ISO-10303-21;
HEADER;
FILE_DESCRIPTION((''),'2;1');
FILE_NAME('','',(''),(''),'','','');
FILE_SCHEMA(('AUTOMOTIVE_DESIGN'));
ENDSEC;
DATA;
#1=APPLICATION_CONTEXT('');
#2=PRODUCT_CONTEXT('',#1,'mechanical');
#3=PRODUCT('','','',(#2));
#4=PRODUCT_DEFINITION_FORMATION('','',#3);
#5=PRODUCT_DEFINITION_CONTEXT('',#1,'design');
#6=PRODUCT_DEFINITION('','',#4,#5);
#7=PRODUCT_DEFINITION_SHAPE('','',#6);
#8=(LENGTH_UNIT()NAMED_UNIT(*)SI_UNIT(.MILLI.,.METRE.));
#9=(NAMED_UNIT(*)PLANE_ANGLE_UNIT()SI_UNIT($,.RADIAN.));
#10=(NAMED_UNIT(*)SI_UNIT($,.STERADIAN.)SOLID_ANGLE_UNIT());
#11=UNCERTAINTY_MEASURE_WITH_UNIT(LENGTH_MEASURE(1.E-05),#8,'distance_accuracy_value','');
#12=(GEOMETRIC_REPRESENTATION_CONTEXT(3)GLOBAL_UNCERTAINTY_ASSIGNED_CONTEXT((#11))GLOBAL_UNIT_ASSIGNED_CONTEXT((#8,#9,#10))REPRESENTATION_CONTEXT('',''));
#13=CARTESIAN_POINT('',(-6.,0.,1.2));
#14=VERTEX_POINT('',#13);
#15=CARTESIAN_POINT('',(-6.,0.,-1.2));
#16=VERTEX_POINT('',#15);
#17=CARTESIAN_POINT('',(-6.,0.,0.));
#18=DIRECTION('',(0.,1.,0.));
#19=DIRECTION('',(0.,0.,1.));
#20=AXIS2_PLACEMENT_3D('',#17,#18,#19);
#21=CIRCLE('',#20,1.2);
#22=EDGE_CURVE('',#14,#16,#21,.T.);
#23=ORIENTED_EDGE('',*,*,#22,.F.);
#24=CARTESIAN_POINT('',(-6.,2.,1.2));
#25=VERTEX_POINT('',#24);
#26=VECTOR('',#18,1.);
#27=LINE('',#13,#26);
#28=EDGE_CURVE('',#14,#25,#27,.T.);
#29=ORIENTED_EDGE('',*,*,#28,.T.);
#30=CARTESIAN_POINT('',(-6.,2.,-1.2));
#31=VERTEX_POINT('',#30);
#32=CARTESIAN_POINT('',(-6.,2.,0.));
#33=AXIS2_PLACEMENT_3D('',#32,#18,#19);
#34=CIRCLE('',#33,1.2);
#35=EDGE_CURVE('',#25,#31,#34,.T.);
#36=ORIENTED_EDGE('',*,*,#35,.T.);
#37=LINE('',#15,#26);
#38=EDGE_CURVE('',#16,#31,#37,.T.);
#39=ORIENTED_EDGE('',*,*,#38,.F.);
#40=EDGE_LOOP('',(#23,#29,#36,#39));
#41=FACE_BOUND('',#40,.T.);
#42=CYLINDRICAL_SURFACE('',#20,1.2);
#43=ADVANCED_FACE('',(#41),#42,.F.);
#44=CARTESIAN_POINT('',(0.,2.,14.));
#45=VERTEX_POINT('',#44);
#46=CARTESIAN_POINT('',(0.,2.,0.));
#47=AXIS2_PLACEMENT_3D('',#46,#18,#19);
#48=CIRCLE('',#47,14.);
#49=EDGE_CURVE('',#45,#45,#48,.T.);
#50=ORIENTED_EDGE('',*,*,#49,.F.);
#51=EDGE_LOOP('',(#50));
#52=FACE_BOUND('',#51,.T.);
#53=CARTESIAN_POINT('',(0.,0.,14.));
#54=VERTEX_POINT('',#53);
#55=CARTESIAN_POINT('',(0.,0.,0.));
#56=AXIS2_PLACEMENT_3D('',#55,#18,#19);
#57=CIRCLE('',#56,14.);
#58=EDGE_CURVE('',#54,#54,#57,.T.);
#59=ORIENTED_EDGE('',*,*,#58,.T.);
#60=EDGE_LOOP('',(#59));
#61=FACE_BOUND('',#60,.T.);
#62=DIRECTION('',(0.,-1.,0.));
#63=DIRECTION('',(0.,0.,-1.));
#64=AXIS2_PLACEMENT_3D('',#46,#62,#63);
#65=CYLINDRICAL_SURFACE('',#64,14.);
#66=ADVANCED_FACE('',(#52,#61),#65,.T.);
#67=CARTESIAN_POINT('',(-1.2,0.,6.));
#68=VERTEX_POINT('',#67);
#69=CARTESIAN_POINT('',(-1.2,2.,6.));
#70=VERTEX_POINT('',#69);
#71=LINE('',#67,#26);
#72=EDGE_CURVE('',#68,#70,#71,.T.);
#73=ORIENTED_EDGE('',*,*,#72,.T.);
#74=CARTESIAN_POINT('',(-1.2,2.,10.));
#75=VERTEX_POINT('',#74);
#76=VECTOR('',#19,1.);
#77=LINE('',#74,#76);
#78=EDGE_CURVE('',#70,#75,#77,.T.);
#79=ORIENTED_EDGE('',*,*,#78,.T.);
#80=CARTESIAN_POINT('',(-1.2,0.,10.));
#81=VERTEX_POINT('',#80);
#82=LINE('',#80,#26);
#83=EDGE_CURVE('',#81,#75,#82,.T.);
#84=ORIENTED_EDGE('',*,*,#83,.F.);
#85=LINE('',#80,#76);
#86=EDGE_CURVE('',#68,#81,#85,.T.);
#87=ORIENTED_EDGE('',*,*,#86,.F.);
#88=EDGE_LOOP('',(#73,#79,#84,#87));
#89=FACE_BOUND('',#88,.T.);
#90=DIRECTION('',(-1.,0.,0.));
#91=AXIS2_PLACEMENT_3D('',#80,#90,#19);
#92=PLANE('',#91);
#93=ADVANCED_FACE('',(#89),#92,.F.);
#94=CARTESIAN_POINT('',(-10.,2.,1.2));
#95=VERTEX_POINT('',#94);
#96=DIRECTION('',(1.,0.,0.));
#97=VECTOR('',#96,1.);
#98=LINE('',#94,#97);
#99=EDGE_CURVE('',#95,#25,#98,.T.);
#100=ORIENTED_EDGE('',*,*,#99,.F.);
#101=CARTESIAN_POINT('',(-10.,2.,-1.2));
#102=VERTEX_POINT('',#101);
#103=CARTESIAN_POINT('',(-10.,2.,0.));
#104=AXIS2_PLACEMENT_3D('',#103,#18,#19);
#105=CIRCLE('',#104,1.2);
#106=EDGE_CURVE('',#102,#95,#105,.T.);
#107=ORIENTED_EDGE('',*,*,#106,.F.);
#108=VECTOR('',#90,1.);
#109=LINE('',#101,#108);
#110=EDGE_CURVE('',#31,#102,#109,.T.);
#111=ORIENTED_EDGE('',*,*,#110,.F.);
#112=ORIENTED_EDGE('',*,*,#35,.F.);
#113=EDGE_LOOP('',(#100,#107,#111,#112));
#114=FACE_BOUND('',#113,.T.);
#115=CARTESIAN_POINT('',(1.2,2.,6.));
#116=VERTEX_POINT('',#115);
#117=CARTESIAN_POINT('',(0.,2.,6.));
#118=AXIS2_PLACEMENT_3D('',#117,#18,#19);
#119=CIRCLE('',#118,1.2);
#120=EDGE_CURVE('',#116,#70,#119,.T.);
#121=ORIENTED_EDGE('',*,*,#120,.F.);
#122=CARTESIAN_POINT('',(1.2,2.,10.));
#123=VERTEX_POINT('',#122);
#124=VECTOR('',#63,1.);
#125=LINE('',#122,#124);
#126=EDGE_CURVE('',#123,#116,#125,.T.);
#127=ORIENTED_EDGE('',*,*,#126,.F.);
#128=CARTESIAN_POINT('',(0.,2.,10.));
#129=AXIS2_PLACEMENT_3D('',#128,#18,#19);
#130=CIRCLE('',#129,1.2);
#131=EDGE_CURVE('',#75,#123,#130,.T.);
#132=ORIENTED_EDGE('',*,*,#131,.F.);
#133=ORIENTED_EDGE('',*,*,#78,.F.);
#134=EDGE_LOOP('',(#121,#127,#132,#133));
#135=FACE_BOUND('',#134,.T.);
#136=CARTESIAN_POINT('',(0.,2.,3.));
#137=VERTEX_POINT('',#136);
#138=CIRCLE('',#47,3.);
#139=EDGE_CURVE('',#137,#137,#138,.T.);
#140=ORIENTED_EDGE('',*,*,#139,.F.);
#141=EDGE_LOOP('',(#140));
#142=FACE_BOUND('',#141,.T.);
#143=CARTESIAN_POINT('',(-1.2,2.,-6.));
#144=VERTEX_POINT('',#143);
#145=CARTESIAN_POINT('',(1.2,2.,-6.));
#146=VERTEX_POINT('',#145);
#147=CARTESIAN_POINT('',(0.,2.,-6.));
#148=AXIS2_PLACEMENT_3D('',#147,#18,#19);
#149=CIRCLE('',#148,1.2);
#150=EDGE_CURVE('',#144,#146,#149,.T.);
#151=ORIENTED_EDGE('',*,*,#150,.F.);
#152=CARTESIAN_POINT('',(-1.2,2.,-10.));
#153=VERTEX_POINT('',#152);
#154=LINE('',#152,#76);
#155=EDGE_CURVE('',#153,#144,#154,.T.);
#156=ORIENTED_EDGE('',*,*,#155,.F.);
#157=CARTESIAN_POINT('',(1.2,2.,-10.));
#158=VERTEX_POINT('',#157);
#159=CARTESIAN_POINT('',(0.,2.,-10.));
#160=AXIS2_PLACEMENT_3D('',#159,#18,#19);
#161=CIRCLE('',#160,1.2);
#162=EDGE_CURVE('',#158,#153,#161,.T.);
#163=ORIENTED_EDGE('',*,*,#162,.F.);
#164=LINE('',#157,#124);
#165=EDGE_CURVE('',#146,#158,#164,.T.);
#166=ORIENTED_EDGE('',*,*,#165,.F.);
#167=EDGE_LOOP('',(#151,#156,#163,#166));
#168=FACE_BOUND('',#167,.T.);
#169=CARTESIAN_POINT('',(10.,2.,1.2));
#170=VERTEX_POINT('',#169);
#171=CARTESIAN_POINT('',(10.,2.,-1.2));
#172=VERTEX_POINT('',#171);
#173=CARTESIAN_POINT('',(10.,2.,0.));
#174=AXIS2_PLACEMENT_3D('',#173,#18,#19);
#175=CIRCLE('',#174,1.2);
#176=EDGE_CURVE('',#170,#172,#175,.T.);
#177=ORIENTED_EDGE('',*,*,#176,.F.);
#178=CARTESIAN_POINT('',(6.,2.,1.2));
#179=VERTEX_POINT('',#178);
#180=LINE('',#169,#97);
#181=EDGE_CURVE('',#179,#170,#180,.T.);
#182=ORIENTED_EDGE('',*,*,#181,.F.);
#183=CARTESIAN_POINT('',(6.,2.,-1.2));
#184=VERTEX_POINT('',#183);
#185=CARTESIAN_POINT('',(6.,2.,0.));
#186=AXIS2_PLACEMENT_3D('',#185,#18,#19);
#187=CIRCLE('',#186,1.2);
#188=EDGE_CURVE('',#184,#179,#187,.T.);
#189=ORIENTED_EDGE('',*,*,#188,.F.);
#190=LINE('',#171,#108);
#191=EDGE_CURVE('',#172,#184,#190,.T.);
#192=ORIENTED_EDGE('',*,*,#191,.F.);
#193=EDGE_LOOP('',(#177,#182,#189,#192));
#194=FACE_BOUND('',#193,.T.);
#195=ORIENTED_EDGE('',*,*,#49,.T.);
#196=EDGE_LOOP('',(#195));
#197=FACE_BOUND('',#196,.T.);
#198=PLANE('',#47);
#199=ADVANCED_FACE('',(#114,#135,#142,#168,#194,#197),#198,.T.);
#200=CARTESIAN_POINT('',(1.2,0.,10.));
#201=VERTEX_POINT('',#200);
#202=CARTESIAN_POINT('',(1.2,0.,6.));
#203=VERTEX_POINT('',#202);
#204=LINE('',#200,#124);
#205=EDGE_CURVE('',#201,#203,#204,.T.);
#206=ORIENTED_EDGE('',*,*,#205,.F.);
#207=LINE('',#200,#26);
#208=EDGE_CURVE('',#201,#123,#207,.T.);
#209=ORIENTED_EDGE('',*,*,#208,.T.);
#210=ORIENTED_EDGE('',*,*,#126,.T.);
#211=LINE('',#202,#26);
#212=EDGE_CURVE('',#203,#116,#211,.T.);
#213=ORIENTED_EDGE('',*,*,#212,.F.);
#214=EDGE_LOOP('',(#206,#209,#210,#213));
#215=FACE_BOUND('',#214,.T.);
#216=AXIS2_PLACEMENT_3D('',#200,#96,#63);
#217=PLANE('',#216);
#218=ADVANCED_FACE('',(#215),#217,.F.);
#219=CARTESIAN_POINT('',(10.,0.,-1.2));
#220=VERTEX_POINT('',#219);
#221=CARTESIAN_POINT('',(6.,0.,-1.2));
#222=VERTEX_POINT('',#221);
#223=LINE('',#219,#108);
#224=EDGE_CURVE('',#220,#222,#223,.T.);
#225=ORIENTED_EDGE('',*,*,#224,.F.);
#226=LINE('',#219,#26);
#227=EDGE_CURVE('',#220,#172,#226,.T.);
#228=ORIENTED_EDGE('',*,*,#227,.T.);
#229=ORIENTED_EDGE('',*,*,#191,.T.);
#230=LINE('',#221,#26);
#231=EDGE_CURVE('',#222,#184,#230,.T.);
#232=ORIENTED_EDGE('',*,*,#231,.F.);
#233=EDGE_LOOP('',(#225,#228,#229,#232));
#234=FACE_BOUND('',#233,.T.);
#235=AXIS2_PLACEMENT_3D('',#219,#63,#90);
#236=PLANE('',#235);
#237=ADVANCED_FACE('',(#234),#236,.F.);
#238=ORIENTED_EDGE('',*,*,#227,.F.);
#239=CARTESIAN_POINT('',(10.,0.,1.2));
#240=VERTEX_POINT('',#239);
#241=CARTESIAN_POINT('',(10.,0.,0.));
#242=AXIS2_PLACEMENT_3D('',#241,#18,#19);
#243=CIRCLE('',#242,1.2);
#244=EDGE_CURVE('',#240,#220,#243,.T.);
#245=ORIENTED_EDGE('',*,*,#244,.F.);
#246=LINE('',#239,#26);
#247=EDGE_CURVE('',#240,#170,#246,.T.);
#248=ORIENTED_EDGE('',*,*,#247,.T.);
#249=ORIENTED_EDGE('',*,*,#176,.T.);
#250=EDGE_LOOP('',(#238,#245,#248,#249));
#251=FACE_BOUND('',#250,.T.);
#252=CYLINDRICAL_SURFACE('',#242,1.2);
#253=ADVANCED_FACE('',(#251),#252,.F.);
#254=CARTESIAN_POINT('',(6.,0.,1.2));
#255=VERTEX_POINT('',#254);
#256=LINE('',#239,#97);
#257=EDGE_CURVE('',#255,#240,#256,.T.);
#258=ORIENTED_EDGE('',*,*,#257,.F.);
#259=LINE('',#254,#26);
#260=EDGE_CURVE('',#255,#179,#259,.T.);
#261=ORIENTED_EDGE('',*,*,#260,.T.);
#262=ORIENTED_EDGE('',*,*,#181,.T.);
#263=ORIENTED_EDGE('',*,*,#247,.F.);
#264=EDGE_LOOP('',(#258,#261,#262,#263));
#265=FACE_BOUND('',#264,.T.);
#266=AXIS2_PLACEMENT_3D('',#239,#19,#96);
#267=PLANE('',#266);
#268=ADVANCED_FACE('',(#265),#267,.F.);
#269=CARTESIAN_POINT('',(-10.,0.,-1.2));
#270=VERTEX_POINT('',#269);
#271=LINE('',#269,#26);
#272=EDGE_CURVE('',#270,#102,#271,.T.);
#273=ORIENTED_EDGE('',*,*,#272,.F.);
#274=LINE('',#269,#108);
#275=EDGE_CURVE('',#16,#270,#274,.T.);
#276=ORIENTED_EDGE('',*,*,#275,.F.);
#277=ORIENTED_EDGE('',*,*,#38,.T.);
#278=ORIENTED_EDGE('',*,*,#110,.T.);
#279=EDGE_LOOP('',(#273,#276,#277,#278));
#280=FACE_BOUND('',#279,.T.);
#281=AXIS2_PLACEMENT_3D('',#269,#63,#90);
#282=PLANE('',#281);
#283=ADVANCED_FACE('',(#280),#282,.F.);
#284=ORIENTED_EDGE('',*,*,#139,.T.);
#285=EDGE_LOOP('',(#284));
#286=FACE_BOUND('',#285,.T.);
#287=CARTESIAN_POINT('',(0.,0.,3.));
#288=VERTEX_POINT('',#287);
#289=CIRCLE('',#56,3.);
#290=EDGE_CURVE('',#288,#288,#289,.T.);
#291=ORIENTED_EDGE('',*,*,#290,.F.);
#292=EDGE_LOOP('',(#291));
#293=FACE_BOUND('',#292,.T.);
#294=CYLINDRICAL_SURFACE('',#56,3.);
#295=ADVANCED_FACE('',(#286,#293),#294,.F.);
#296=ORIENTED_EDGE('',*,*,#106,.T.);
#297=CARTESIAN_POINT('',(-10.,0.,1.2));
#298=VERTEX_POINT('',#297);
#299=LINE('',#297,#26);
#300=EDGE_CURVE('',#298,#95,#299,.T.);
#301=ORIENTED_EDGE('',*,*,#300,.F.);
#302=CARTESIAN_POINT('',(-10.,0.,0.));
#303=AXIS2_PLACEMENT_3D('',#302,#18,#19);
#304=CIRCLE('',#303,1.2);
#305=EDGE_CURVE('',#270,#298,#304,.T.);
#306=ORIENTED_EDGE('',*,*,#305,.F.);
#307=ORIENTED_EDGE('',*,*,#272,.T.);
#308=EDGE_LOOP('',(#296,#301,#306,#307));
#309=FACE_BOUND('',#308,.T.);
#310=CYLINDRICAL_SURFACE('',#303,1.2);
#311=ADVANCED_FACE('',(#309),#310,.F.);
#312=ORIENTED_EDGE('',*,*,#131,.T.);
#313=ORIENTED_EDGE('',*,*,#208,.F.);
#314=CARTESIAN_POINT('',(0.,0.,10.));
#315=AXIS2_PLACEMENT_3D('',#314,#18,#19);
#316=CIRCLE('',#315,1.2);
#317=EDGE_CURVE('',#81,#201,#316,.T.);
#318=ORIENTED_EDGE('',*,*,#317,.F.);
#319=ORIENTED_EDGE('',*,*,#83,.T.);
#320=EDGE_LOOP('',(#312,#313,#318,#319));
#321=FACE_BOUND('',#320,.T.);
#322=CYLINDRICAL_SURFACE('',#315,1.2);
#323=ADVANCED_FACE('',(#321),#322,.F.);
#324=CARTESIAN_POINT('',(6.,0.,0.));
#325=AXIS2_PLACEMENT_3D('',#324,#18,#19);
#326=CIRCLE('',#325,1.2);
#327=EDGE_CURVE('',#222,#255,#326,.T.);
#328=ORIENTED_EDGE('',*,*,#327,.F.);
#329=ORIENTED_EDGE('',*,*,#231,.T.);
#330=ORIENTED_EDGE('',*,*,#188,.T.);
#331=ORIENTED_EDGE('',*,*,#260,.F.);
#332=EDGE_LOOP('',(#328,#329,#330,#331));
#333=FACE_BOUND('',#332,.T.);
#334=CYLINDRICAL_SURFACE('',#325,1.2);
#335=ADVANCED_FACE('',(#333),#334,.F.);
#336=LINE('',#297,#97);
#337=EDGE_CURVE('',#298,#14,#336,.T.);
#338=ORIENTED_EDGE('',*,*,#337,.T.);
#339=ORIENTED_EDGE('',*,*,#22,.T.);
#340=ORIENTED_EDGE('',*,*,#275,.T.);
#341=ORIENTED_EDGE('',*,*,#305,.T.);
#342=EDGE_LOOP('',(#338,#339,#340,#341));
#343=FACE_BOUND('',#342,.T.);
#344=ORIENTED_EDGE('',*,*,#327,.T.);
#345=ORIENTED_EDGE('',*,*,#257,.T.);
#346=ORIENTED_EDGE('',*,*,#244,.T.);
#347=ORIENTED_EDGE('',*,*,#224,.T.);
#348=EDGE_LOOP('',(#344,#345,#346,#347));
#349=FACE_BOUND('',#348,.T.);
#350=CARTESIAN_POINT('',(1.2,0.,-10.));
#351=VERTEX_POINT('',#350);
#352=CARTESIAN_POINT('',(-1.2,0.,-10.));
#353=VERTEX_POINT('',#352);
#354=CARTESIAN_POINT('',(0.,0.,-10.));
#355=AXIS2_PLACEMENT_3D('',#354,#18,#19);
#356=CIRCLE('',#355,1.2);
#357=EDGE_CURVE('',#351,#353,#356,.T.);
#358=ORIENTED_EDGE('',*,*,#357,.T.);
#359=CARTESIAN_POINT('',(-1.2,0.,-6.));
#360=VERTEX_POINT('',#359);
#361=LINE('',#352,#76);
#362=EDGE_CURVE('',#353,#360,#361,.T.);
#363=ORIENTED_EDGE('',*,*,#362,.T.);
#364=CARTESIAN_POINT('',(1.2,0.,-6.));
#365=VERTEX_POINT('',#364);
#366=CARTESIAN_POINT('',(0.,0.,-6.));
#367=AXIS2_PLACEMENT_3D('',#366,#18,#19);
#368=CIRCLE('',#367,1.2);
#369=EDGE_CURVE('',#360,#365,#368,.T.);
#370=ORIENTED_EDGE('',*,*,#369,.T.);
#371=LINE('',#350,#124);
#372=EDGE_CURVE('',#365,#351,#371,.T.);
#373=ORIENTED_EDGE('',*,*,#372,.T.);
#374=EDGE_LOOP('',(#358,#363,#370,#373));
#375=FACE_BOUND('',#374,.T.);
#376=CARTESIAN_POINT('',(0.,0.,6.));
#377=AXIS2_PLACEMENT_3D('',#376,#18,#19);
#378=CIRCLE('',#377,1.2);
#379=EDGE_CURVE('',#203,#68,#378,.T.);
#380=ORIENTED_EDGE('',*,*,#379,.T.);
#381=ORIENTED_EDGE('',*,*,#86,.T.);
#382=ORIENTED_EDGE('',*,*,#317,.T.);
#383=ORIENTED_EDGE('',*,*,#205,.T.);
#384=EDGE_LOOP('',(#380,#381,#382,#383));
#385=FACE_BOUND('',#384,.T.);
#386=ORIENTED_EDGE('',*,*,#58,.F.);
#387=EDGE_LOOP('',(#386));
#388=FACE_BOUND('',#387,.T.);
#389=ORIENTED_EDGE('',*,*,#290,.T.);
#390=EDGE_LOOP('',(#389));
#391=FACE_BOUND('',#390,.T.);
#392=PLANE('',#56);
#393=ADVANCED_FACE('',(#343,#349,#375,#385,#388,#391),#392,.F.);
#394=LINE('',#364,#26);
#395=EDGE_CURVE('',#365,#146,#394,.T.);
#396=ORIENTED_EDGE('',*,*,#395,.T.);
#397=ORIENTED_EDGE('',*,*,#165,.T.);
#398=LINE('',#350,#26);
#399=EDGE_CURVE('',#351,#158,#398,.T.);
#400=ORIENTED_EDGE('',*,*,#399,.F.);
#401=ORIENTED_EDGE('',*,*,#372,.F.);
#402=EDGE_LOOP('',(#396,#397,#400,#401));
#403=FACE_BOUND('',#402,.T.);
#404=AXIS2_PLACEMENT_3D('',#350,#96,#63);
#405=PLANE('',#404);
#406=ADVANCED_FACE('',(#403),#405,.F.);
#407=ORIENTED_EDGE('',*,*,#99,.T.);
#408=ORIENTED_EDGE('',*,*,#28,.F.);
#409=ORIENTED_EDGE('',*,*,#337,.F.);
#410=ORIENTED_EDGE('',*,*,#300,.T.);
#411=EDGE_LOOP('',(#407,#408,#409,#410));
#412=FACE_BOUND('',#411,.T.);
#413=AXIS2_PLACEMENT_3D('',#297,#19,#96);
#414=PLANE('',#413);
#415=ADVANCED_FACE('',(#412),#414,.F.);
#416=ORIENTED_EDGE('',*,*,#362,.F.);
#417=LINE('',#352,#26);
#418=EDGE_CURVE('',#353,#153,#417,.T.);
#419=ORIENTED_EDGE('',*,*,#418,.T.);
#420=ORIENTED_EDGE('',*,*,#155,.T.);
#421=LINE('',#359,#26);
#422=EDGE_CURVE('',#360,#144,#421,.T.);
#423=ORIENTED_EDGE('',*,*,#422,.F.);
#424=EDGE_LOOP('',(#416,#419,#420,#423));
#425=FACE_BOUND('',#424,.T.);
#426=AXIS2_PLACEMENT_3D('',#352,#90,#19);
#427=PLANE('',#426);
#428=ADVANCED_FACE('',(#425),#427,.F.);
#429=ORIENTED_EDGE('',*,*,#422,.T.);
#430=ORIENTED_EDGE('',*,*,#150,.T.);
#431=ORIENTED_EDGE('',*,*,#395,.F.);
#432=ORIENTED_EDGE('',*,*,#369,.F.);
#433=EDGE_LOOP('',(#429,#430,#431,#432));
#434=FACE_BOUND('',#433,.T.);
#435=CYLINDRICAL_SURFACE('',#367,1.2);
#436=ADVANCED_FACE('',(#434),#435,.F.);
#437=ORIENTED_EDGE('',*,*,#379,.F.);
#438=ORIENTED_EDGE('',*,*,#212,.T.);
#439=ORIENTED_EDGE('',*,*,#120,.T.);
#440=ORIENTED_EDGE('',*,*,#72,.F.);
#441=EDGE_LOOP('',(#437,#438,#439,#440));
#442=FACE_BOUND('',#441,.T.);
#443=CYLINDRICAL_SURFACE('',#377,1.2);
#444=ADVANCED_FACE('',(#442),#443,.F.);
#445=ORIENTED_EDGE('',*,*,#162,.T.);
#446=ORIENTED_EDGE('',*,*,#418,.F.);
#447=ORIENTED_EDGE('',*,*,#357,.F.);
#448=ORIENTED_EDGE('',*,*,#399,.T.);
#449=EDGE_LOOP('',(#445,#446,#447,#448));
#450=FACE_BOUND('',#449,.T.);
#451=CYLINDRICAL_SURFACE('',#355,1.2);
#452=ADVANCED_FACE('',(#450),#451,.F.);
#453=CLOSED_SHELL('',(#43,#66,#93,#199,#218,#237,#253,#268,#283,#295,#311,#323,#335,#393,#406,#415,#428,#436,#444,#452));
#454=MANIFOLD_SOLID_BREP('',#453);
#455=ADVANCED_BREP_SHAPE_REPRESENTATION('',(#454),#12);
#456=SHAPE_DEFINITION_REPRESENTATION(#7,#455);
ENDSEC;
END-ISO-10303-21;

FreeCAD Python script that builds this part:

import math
import FreeCAD as App
import Part
import Sketcher
from FreeCAD import Vector
Q = App.Units.Quantity

doc = App.newDocument("Part")
body = doc.addObject("PartDesign::Body", "Body")

# Sketch on XZ plane
sketch1 = body.newObject("Sketcher::SketchObject", "Sketch")
sketch1.AttachmentSupport = (doc.getObject("XZ_Plane"), [""])
sketch1.MapMode = "FlatFace"
sketch1.addGeometry(Part.Circle(Vector(0, 0, 0), Vector(0, 0, 1), 14), False)
sketch1.addConstraint([
    Sketcher.Constraint("Coincident", 0, 3, -1, 1),
    Sketcher.Constraint("Diameter", 0, Q("28 mm")),
])
pad1 = body.newObject("PartDesign::Pad", "Pad")
pad1.Profile = sketch1
pad1.Length = 2
pad1.Reversed = True

# Sketch on XZ plane
sketch2 = body.newObject("Sketcher::SketchObject", "Sketch001")
sketch2.AttachmentSupport = (doc.getObject("XZ_Plane"), [""])
sketch2.MapMode = "FlatFace"
sketch2.AttachmentOffset = App.Placement(Vector(0, 0, -2), App.Rotation())
sketch2.addGeometry([
    Part.Circle(Vector(0, 0, 0), Vector(0, 0, 1), 3),  # 0
    Part.LineSegment(Vector(1.2, -6, 0), Vector(1.2, -10, 0)),  # 1
    Part.ArcOfCircle(Part.Circle(Vector(0, -10, 0), Vector(0, 0, 1), 1.2), math.radians(180), math.radians(360)),  # 2
    Part.LineSegment(Vector(-1.2, -10, 0), Vector(-1.2, -6, 0)),  # 3
    Part.ArcOfCircle(Part.Circle(Vector(0, -6, 0), Vector(0, 0, 1), 1.2), math.radians(0), math.radians(180)),  # 4
    Part.LineSegment(Vector(6, 1.2, 0), Vector(10, 1.2, 0)),  # 5
    Part.ArcOfCircle(Part.Circle(Vector(10, 0, 0), Vector(0, 0, 1), 1.2), math.radians(-90), math.radians(90)),  # 6
    Part.LineSegment(Vector(10, -1.2, 0), Vector(6, -1.2, 0)),  # 7
    Part.ArcOfCircle(Part.Circle(Vector(6, 0, 0), Vector(0, 0, 1), 1.2), math.radians(90), math.radians(270)),  # 8
    Part.LineSegment(Vector(-1.2, 6, 0), Vector(-1.2, 10, 0)),  # 9
    Part.ArcOfCircle(Part.Circle(Vector(0, 10, 0), Vector(0, 0, 1), 1.2), math.radians(0), math.radians(180)),  # 10
    Part.LineSegment(Vector(1.2, 10, 0), Vector(1.2, 6, 0)),  # 11
    Part.ArcOfCircle(Part.Circle(Vector(0, 6, 0), Vector(0, 0, 1), 1.2), math.radians(180), math.radians(360)),  # 12
    Part.LineSegment(Vector(-6, -1.2, 0), Vector(-10, -1.2, 0)),  # 13
    Part.ArcOfCircle(Part.Circle(Vector(-10, 0, 0), Vector(0, 0, 1), 1.2), math.radians(90), math.radians(270)),  # 14
    Part.LineSegment(Vector(-10, 1.2, 0), Vector(-6, 1.2, 0)),  # 15
    Part.ArcOfCircle(Part.Circle(Vector(-6, 0, 0), Vector(0, 0, 1), 1.2), math.radians(-90), math.radians(90)),  # 16
], False)
sketch2.addConstraint([
    Sketcher.Constraint("Tangent", 1, 2, 2, 2),
    Sketcher.Constraint("Tangent", 2, 1, 3, 1),
    Sketcher.Constraint("Tangent", 3, 2, 4, 2),
    Sketcher.Constraint("Tangent", 4, 1, 1, 1),
    Sketcher.Constraint("Tangent", 5, 2, 6, 2),
    Sketcher.Constraint("Tangent", 6, 1, 7, 1),
    Sketcher.Constraint("Tangent", 7, 2, 8, 2),
    Sketcher.Constraint("Tangent", 8, 1, 5, 1),
    Sketcher.Constraint("Tangent", 9, 2, 10, 2),
    Sketcher.Constraint("Tangent", 10, 1, 11, 1),
    Sketcher.Constraint("Tangent", 11, 2, 12, 2),
    Sketcher.Constraint("Tangent", 12, 1, 9, 1),
    Sketcher.Constraint("Tangent", 13, 2, 14, 2),
    Sketcher.Constraint("Tangent", 14, 1, 15, 1),
    Sketcher.Constraint("Tangent", 15, 2, 16, 2),
    Sketcher.Constraint("Tangent", 16, 1, 13, 1),
    Sketcher.Constraint("Vertical", 1),
    Sketcher.Constraint("Vertical", 3),
    Sketcher.Constraint("Horizontal", 5),
    Sketcher.Constraint("Horizontal", 7),
    Sketcher.Constraint("Vertical", 9),
    Sketcher.Constraint("Vertical", 11),
    Sketcher.Constraint("Horizontal", 13),
    Sketcher.Constraint("Horizontal", 15),
    Sketcher.Constraint("Coincident", 0, 3, -1, 1),
    Sketcher.Constraint("Equal", 4, 6),
    Sketcher.Constraint("Equal", 8, 10),
    Sketcher.Constraint("Equal", 12, 14),
    Sketcher.Constraint("Symmetric", 2, 3, 10, 3, -1, 1),
    Sketcher.Constraint("Symmetric", 6, 3, 14, 3, -1, 1),
    Sketcher.Constraint("Symmetric", 8, 3, 16, 3, -2),
    Sketcher.Constraint("Symmetric", 4, 3, 12, 3, -1),
    Sketcher.Constraint("Equal", 15, 1),
    Sketcher.Constraint("Diameter", 0, Q("6 mm")),
    Sketcher.Constraint("Radius", 2, Q("1.2 mm")),
    Sketcher.Constraint("DistanceX", 5, 1, 5, 2, Q("4 mm")),
    Sketcher.Constraint("DistanceY", 2, 3, -1, 1, Q("10 mm")),
    Sketcher.Constraint("DistanceX", -1, 1, 6, 3, Q("10 mm")),
])
pocket1 = body.newObject("PartDesign::Pocket", "Pocket")
pocket1.Profile = sketch2
pocket1.Type = "ThroughAll"
pocket1.Reversed = True

doc.recompute()
